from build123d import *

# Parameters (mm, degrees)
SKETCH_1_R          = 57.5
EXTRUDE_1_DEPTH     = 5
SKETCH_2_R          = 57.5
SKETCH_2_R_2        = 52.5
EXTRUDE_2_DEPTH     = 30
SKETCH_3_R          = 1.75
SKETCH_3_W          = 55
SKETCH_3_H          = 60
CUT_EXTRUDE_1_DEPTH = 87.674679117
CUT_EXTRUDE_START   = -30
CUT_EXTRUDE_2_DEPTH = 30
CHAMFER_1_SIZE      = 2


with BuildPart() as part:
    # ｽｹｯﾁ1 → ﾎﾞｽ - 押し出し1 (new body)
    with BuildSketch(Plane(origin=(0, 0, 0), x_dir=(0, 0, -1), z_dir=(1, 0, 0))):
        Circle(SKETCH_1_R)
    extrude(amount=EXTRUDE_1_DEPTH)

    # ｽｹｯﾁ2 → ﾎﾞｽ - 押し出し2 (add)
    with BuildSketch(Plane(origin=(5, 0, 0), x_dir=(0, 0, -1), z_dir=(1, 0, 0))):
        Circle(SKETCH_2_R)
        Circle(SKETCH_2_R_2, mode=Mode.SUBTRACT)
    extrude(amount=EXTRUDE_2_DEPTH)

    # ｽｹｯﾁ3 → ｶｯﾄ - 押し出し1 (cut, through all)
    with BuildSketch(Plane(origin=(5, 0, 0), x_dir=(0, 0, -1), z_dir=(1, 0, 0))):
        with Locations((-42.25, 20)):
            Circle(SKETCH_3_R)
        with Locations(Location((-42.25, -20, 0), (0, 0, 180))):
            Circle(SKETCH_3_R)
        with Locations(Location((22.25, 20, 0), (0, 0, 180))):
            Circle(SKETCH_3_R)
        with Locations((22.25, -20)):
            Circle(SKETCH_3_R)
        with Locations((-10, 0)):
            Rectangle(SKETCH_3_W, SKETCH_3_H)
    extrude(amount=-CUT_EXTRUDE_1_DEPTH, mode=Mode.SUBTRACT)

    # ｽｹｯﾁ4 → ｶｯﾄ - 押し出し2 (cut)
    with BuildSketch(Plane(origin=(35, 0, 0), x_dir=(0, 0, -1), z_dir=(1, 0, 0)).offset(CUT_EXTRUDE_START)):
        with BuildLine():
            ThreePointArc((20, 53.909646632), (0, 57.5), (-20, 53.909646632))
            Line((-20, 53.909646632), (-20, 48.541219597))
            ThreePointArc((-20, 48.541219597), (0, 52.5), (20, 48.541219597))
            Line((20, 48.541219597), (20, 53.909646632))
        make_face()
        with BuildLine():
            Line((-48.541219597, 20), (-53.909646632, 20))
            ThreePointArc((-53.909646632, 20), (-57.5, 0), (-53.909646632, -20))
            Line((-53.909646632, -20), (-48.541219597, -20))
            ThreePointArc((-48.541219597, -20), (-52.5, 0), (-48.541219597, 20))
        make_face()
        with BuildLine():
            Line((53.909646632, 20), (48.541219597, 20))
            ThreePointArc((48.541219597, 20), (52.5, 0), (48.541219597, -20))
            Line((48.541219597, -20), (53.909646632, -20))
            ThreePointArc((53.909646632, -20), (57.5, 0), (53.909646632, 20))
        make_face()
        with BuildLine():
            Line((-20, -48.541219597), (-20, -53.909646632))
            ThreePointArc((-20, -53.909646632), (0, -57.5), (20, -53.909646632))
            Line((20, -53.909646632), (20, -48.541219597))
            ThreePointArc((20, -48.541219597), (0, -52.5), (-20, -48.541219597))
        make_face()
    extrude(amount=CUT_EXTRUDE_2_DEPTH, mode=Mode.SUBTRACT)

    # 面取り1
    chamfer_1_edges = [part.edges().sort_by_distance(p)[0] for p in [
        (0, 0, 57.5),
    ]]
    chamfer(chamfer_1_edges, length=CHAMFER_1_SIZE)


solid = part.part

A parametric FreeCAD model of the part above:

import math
import FreeCAD as App
import Part
import Sketcher


def edges_at(feature, points):
    """Names of the edges that pass closest to the given points."""
    edges = feature.Shape.Edges
    near = lambda p: min(range(len(edges)), key=lambda i: edges[i].distToShape(Part.Vertex(*p))[0])
    return sorted({f"Edge{near(p) + 1}" for p in points})

doc = App.newDocument("Part")
body = doc.addObject("PartDesign::Body", "Body")

# Sketch on YZ plane
sketch1 = body.newObject("Sketcher::SketchObject", "Sketch")
sketch1.AttachmentSupport = (doc.getObject("YZ_Plane"), [""])
sketch1.MapMode = "FlatFace"
sketch1.addGeometry(Part.Circle(App.Vector(0, 0, 0), App.Vector(0, 0, 1), 58), False)
sketch1.addConstraint([
    Sketcher.Constraint("Coincident", 0, 3, -1, 1),
    Sketcher.Constraint("Diameter", 0, 115.0),
])
pad1 = body.newObject("PartDesign::Pad", "Pad")
pad1.Profile = sketch1
pad1.Length = 5

# Sketch on YZ plane
sketch2 = body.newObject("Sketcher::SketchObject", "Sketch001")
sketch2.AttachmentSupport = (doc.getObject("YZ_Plane"), [""])
sketch2.MapMode = "FlatFace"
sketch2.AttachmentOffset = App.Placement(App.Vector(0, 0, 5), App.Rotation())
sketch2.addGeometry([
    Part.Circle(App.Vector(0, 0, 0), App.Vector(0, 0, 1), 58),
    Part.Circle(App.Vector(0, 0, 0), App.Vector(0, 0, 1), 52),
], False)
sketch2.addConstraint([
    Sketcher.Constraint("Coincident", 0, 3, -1, 1),
    Sketcher.Constraint("Coincident", 1, 3, -1, 1),
    Sketcher.Constraint("Diameter", 0, 115.0),
    Sketcher.Constraint("Diameter", 1, 105.0),
])
pad2 = body.newObject("PartDesign::Pad", "Pad001")
pad2.Profile = sketch2
pad2.Length = 30

# Sketch on YZ plane
sketch3 = body.newObject("Sketcher::SketchObject", "Sketch002")
sketch3.AttachmentSupport = (doc.getObject("YZ_Plane"), [""])
sketch3.MapMode = "FlatFace"
sketch3.AttachmentOffset = App.Placement(App.Vector(0, 0, 5), App.Rotation())
sketch3.addGeometry([
    Part.Circle(App.Vector(20, 42.2, 0), App.Vector(0, 0, 1), 1.8),  # 0
    Part.Circle(App.Vector(-20, 42.2, 0), App.Vector(0, 0, 1), 1.8),  # 1
    Part.Circle(App.Vector(20, -22.2, 0), App.Vector(0, 0, 1), 1.8),  # 2
    Part.Circle(App.Vector(-20, -22.2, 0), App.Vector(0, 0, 1), 1.8),  # 3
    Part.LineSegment(App.Vector(30, 37.5, 0), App.Vector(-30, 37.5, 0)),  # 4
    Part.LineSegment(App.Vector(-30, 37.5, 0), App.Vector(-30, -17.5, 0)),  # 5
    Part.LineSegment(App.Vector(-30, -17.5, 0), App.Vector(30, -17.5, 0)),  # 6
    Part.LineSegment(App.Vector(30, -17.5, 0), App.Vector(30, 37.5, 0)),  # 7
], False)
sketch3.addConstraint([
    Sketcher.Constraint("Coincident", 4, 2, 5, 1),
    Sketcher.Constraint("Coincident", 5, 2, 6, 1),
    Sketcher.Constraint("Coincident", 6, 2, 7, 1),
    Sketcher.Constraint("Coincident", 7, 2, 4, 1),
    Sketcher.Constraint("Horizontal", 4),
    Sketcher.Constraint("Vertical", 5),
    Sketcher.Constraint("Horizontal", 6),
    Sketcher.Constraint("Vertical", 7),
    Sketcher.Constraint("Equal", 0, 1),
    Sketcher.Constraint("Equal", 1, 2),
    Sketcher.Constraint("Equal", 2, 3),
    Sketcher.Constraint("Symmetric", 0, 3, 1, 3, -2),
    Sketcher.Constraint("Symmetric", 2, 3, 3, 3, -2),
    Sketcher.Constraint("Vertical", 0, 3, 2, 3),
    Sketcher.Constraint("Diameter", 0, 3.5),
    Sketcher.Constraint("DistanceX", 4, 2, 4, 1, 60.0),
    Sketcher.Constraint("DistanceY", 5, 2, 5, 1, 55.0),
    Sketcher.Constraint("DistanceX", -1, 1, 0, 3, 20.0),
    Sketcher.Constraint("DistanceX", 4, 2, -1, 1, 30.0),
    Sketcher.Constraint("DistanceY", -1, 1, 4, 2, 37.5),
    Sketcher.Constraint("DistanceY", 2, 3, 0, 3, 64.5),
    Sketcher.Constraint("DistanceY", -1, 1, 0, 3, 42.25),
])
pocket1 = body.newObject("PartDesign::Pocket", "Pocket")
pocket1.Profile = sketch3
pocket1.Type = "ThroughAll"

# Sketch on YZ plane
sketch4 = body.newObject("Sketcher::SketchObject", "Sketch003")
sketch4.AttachmentSupport = (doc.getObject("YZ_Plane"), [""])
sketch4.MapMode = "FlatFace"
sketch4.AttachmentOffset = App.Placement(App.Vector(0, 0, 5), App.Rotation())
sketch4.addGeometry([
    Part.ArcOfCircle(Part.Circle(App.Vector(0, 0, 0), App.Vector(0, 0, 1), 57), math.radians(-20), math.radians(20)),  # 0
    Part.LineSegment(App.Vector(54, 20, 0), App.Vector(49, 20, 0)),  # 1
    Part.ArcOfCircle(Part.Circle(App.Vector(0, 0, 0), App.Vector(0, 0, 1), 52), math.radians(-22), math.radians(22)),  # 2
    Part.LineSegment(App.Vector(49, -20, 0), App.Vector(54, -20, 0)),  # 3
    Part.LineSegment(App.Vector(20, 49, 0), App.Vector(20, 54, 0)),  # 4
    Part.ArcOfCircle(Part.Circle(App.Vector(0, 0, 0), App.Vector(0, 0, 1), 57), math.radians(70), math.radians(110)),  # 5
    Part.LineSegment(App.Vector(-20, 54, 0), App.Vector(-20, 49, 0)),  # 6
    Part.ArcOfCircle(Part.Circle(App.Vector(0, 0, 0), App.Vector(0, 0, 1), 52), math.radians(68), math.radians(112)),  # 7
    Part.LineSegment(App.Vector(20, -54, 0), App.Vector(20, -49, 0)),  # 8
    Part.ArcOfCircle(Part.Circle(App.Vector(0, 0, 0), App.Vector(0, 0, 1), 52), math.radians(-112), math.radians(-68)),  # 9
    Part.LineSegment(App.Vector(-20, -49, 0), App.Vector(-20, -54, 0)),  # 10
    Part.ArcOfCircle(Part.Circle(App.Vector(0, 0, 0), App.Vector(0, 0, 1), 57), math.radians(-110), math.radians(-70)),  # 11
    Part.LineSegment(App.Vector(-49, 20, 0), App.Vector(-54, 20, 0)),  # 12
    Part.ArcOfCircle(Part.Circle(App.Vector(0, 0, 0), App.Vector(0, 0, 1), 57), math.radians(160), math.radians(200)),  # 13
    Part.LineSegment(App.Vector(-54, -20, 0), App.Vector(-49, -20, 0)),  # 14
    Part.ArcOfCircle(Part.Circle(App.Vector(0, 0, 0), App.Vector(0, 0, 1), 52), math.radians(158), math.radians(202)),  # 15
], False)
sketch4.addConstraint([
    Sketcher.Constraint("Coincident", 0, 2, 1, 1),
    Sketcher.Constraint("Coincident", 1, 2, 2, 2),
    Sketcher.Constraint("Coincident", 2, 1, 3, 1),
    Sketcher.Constraint("Coincident", 3, 2, 0, 1),
    Sketcher.Constraint("Coincident", 4, 2, 5, 1),
    Sketcher.Constraint("Coincident", 5, 2, 6, 1),
    Sketcher.Constraint("Coincident", 6, 2, 7, 2),
    Sketcher.Constraint("Coincident", 7, 1, 4, 1),
    Sketcher.Constraint("Coincident", 8, 2, 9, 2),
    Sketcher.Constraint("Coincident", 9, 1, 10, 1),
    Sketcher.Constraint("Coincident", 10, 2, 11, 1),
    Sketcher.Constraint("Coincident", 11, 2, 8, 1),
    Sketcher.Constraint("Coincident", 12, 2, 13, 1),
    Sketcher.Constraint("Coincident", 13, 2, 14, 1),
    Sketcher.Constraint("Coincident", 14, 2, 15, 2),
    Sketcher.Constraint("Coincident", 15, 1, 12, 1),
    Sketcher.Constraint("Horizontal", 1),
    Sketcher.Constraint("Horizontal", 3),
    Sketcher.Constraint("Vertical", 4),
    Sketcher.Constraint("Vertical", 6),
    Sketcher.Constraint("Vertical", 8),
    Sketcher.Constraint("Vertical", 10),
    Sketcher.Constraint("Horizontal", 12),
    Sketcher.Constraint("Horizontal", 14),
    Sketcher.Constraint("Coincident", 0, 3, -1, 1),
    Sketcher.Constraint("Coincident", 2, 3, -1, 1),
    Sketcher.Constraint("Coincident", 5, 3, -1, 1),
    Sketcher.Constraint("Coincident", 7, 3, -1, 1),
    Sketcher.Constraint("Coincident", 9, 3, -1, 1),
    Sketcher.Constraint("Coincident", 11, 3, -1, 1),
    Sketcher.Constraint("Coincident", 13, 3, -1, 1),
    Sketcher.Constraint("Coincident", 15, 3, -1, 1),
    Sketcher.Constraint("Equal", 0, 5),
    Sketcher.Constraint("Equal", 2, 7),
    Sketcher.Constraint("Equal", 7, 9),
    Sketcher.Constraint("Equal", 5, 11),
    Sketcher.Constraint("Equal", 11, 13),
    Sketcher.Constraint("Equal", 9, 15),
    Sketcher.Constraint("Horizontal", 4, 2, 5, 2),
    Sketcher.Constraint("Horizontal", 8, 2, 9, 1),
    Sketcher.Constraint("Horizontal", 1, 2, 12, 2),
    Sketcher.Constraint("Horizontal", 3, 2, 13, 2),
    Sketcher.Constraint("Vertical", 1, 2, 2, 1),
    Sketcher.Constraint("Vertical", 7, 1, 8, 2),
    Sketcher.Constraint("Equal", 14, 4),
    Sketcher.Constraint("Radius", 0, 57.5),
    Sketcher.Constraint("Radius", 2, 52.5),
    Sketcher.Constraint("DistanceY", -1, 1, 0, 2, 20.0),
])
pocket2 = body.newObject("PartDesign::Pocket", "Pocket001")
pocket2.Profile = sketch4
pocket2.Length = 30
pocket2.Reversed = True
doc.recompute()

chamfer = body.newObject("PartDesign::Chamfer", "Chamfer")
chamfer.Base = (pocket2, edges_at(pocket2, [(0, 0, 57.5)]))
chamfer.Size = 2

doc.recompute()
